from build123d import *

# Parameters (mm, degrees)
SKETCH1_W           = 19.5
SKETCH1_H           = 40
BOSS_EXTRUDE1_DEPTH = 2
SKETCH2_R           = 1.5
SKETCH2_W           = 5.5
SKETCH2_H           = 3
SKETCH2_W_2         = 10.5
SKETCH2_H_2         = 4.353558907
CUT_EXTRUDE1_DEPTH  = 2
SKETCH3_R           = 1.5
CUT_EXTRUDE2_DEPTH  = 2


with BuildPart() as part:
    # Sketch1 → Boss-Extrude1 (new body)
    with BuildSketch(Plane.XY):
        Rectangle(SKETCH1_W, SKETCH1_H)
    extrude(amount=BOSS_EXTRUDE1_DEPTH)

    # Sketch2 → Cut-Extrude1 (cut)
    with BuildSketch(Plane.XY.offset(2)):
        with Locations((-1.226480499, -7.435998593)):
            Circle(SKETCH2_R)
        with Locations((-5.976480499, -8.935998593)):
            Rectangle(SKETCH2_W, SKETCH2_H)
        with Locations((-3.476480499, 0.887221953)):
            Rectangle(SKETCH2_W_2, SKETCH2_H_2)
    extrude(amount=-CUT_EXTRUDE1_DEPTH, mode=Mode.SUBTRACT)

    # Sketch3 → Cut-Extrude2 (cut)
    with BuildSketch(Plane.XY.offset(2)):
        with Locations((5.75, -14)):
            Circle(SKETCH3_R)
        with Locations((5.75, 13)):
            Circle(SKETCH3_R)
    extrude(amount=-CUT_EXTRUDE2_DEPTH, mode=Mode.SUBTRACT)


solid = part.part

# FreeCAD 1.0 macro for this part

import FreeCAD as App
import Part
import Sketcher
Q = App.Units.Quantity


def add_polygon(sketch, points):
    """Adds a closed chain of lines whose ends are joined by coincident constraints."""
    first, n = sketch.GeometryCount, len(points)
    for a, b in zip(points, points[1:] + points[:1]):
        sketch.addGeometry(Part.LineSegment(App.Vector(*a, 0), App.Vector(*b, 0)), False)
    for i in range(n):
        sketch.addConstraint(Sketcher.Constraint("Coincident", first + i, 2, first + (i + 1) % n, 1))

doc = App.newDocument("Part")
body = doc.addObject("PartDesign::Body", "Body")

# Sketch on XY plane
sketch1 = body.newObject("Sketcher::SketchObject", "Sketch")
sketch1.AttachmentSupport = (doc.getObject("XY_Plane"), [""])
sketch1.MapMode = "FlatFace"
add_polygon(sketch1, [(-10, 20), (-10, -20), (10, -20), (10, 20)])  # lines 0-3
sketch1.addConstraint([
    Sketcher.Constraint("Vertical", 0),
    Sketcher.Constraint("Horizontal", 1),
    Sketcher.Constraint("Vertical", 2),
    Sketcher.Constraint("Horizontal", 3),
    Sketcher.Constraint("Symmetric", 0, 2, 2, 2, -1, 1),
    Sketcher.Constraint("DistanceY", 0, 2, 0, 1, Q("40 mm")),
    Sketcher.Constraint("DistanceX", 1, 1, 1, 2, Q("19.5 mm")),
])
pad1 = body.newObject("PartDesign::Pad", "Pad")
pad1.Profile = sketch1
pad1.Length = 2

# Sketch on XY plane
sketch2 = body.newObject("Sketcher::SketchObject", "Sketch001")
sketch2.AttachmentSupport = (doc.getObject("XY_Plane"), [""])
sketch2.MapMode = "FlatFace"
sketch2.AttachmentOffset = App.Placement(App.Vector(0, 0, 2), App.Rotation())
sketch2.addGeometry(Part.Circle(App.Vector(-1.2, -7.4, 0), App.Vector(0, 0, 1), 1.5), False)  # 0
add_polygon(sketch2, [(-8.7, -7.4), (-8.7, -10.4), (-3.2, -10.4), (-3.2, -7.4)])  # lines 1-4
add_polygon(sketch2, [(-8.7, 3.1), (-8.7, -1.3), (1.8, -1.3), (1.8, 3.1)])  # lines 5-8
sketch2.addConstraint([
    Sketcher.Constraint("Vertical", 1),
    Sketcher.Constraint("Horizontal", 2),
    Sketcher.Constraint("Vertical", 3),
    Sketcher.Constraint("Horizontal", 4),
    Sketcher.Constraint("Vertical", 5),
    Sketcher.Constraint("Horizontal", 6),
    Sketcher.Constraint("Vertical", 7),
    Sketcher.Constraint("Horizontal", 8),
    Sketcher.Constraint("Horizontal", 0, 3, 3, 2),
    Sketcher.Constraint("Vertical", 4, 2, 5, 2),
    Sketcher.Constraint("Diameter", 0, Q("3 mm")),
    Sketcher.Constraint("DistanceY", 1, 2, 1, 1, Q("3 mm")),
    Sketcher.Constraint("DistanceX", 2, 1, 2, 2, Q("5.5 mm")),
    Sketcher.Constraint("DistanceX", 6, 1, 6, 2, Q("10.5 mm")),
    Sketcher.Constraint("DistanceX", 2, 2, 0, 3, Q("2 mm")),
    Sketcher.Constraint("DistanceY", 0, 3, 7, 2, Q("10.5 mm")),
    Sketcher.Constraint("DistanceY", 0, 3, -1, 1, Q("7.435999 mm")),
    Sketcher.Constraint("DistanceY", 5, 2, 5, 1, Q("4.353559 mm")),
    Sketcher.Constraint("DistanceX", 0, 3, -1, 1, Q("1.22648 mm")),
])
pocket1 = body.newObject("PartDesign::Pocket", "Pocket")
pocket1.Profile = sketch2
pocket1.Length = 2

# Sketch on XY plane
sketch3 = body.newObject("Sketcher::SketchObject", "Sketch002")
sketch3.AttachmentSupport = (doc.getObject("XY_Plane"), [""])
sketch3.MapMode = "FlatFace"
sketch3.AttachmentOffset = App.Placement(App.Vector(0, 0, 2), App.Rotation())
sketch3.addGeometry([
    Part.Circle(App.Vector(5.8, -14, 0), App.Vector(0, 0, 1), 1.5),
    Part.Circle(App.Vector(5.8, 13, 0), App.Vector(0, 0, 1), 1.5),
], False)
sketch3.addConstraint([
    Sketcher.Constraint("Equal", 0, 1),
    Sketcher.Constraint("Vertical", 0, 3, 1, 3),
    Sketcher.Constraint("Diameter", 0, Q("3 mm")),
    Sketcher.Constraint("DistanceY", 0, 3, -1, 1, Q("14 mm")),
    Sketcher.Constraint("DistanceY", -1, 1, 1, 3, Q("13 mm")),
    Sketcher.Constraint("DistanceX", -1, 1, 0, 3, Q("5.75 mm")),
])
pocket2 = body.newObject("PartDesign::Pocket", "Pocket001")
pocket2.Profile = sketch3
pocket2.Length = 2

doc.recompute()
